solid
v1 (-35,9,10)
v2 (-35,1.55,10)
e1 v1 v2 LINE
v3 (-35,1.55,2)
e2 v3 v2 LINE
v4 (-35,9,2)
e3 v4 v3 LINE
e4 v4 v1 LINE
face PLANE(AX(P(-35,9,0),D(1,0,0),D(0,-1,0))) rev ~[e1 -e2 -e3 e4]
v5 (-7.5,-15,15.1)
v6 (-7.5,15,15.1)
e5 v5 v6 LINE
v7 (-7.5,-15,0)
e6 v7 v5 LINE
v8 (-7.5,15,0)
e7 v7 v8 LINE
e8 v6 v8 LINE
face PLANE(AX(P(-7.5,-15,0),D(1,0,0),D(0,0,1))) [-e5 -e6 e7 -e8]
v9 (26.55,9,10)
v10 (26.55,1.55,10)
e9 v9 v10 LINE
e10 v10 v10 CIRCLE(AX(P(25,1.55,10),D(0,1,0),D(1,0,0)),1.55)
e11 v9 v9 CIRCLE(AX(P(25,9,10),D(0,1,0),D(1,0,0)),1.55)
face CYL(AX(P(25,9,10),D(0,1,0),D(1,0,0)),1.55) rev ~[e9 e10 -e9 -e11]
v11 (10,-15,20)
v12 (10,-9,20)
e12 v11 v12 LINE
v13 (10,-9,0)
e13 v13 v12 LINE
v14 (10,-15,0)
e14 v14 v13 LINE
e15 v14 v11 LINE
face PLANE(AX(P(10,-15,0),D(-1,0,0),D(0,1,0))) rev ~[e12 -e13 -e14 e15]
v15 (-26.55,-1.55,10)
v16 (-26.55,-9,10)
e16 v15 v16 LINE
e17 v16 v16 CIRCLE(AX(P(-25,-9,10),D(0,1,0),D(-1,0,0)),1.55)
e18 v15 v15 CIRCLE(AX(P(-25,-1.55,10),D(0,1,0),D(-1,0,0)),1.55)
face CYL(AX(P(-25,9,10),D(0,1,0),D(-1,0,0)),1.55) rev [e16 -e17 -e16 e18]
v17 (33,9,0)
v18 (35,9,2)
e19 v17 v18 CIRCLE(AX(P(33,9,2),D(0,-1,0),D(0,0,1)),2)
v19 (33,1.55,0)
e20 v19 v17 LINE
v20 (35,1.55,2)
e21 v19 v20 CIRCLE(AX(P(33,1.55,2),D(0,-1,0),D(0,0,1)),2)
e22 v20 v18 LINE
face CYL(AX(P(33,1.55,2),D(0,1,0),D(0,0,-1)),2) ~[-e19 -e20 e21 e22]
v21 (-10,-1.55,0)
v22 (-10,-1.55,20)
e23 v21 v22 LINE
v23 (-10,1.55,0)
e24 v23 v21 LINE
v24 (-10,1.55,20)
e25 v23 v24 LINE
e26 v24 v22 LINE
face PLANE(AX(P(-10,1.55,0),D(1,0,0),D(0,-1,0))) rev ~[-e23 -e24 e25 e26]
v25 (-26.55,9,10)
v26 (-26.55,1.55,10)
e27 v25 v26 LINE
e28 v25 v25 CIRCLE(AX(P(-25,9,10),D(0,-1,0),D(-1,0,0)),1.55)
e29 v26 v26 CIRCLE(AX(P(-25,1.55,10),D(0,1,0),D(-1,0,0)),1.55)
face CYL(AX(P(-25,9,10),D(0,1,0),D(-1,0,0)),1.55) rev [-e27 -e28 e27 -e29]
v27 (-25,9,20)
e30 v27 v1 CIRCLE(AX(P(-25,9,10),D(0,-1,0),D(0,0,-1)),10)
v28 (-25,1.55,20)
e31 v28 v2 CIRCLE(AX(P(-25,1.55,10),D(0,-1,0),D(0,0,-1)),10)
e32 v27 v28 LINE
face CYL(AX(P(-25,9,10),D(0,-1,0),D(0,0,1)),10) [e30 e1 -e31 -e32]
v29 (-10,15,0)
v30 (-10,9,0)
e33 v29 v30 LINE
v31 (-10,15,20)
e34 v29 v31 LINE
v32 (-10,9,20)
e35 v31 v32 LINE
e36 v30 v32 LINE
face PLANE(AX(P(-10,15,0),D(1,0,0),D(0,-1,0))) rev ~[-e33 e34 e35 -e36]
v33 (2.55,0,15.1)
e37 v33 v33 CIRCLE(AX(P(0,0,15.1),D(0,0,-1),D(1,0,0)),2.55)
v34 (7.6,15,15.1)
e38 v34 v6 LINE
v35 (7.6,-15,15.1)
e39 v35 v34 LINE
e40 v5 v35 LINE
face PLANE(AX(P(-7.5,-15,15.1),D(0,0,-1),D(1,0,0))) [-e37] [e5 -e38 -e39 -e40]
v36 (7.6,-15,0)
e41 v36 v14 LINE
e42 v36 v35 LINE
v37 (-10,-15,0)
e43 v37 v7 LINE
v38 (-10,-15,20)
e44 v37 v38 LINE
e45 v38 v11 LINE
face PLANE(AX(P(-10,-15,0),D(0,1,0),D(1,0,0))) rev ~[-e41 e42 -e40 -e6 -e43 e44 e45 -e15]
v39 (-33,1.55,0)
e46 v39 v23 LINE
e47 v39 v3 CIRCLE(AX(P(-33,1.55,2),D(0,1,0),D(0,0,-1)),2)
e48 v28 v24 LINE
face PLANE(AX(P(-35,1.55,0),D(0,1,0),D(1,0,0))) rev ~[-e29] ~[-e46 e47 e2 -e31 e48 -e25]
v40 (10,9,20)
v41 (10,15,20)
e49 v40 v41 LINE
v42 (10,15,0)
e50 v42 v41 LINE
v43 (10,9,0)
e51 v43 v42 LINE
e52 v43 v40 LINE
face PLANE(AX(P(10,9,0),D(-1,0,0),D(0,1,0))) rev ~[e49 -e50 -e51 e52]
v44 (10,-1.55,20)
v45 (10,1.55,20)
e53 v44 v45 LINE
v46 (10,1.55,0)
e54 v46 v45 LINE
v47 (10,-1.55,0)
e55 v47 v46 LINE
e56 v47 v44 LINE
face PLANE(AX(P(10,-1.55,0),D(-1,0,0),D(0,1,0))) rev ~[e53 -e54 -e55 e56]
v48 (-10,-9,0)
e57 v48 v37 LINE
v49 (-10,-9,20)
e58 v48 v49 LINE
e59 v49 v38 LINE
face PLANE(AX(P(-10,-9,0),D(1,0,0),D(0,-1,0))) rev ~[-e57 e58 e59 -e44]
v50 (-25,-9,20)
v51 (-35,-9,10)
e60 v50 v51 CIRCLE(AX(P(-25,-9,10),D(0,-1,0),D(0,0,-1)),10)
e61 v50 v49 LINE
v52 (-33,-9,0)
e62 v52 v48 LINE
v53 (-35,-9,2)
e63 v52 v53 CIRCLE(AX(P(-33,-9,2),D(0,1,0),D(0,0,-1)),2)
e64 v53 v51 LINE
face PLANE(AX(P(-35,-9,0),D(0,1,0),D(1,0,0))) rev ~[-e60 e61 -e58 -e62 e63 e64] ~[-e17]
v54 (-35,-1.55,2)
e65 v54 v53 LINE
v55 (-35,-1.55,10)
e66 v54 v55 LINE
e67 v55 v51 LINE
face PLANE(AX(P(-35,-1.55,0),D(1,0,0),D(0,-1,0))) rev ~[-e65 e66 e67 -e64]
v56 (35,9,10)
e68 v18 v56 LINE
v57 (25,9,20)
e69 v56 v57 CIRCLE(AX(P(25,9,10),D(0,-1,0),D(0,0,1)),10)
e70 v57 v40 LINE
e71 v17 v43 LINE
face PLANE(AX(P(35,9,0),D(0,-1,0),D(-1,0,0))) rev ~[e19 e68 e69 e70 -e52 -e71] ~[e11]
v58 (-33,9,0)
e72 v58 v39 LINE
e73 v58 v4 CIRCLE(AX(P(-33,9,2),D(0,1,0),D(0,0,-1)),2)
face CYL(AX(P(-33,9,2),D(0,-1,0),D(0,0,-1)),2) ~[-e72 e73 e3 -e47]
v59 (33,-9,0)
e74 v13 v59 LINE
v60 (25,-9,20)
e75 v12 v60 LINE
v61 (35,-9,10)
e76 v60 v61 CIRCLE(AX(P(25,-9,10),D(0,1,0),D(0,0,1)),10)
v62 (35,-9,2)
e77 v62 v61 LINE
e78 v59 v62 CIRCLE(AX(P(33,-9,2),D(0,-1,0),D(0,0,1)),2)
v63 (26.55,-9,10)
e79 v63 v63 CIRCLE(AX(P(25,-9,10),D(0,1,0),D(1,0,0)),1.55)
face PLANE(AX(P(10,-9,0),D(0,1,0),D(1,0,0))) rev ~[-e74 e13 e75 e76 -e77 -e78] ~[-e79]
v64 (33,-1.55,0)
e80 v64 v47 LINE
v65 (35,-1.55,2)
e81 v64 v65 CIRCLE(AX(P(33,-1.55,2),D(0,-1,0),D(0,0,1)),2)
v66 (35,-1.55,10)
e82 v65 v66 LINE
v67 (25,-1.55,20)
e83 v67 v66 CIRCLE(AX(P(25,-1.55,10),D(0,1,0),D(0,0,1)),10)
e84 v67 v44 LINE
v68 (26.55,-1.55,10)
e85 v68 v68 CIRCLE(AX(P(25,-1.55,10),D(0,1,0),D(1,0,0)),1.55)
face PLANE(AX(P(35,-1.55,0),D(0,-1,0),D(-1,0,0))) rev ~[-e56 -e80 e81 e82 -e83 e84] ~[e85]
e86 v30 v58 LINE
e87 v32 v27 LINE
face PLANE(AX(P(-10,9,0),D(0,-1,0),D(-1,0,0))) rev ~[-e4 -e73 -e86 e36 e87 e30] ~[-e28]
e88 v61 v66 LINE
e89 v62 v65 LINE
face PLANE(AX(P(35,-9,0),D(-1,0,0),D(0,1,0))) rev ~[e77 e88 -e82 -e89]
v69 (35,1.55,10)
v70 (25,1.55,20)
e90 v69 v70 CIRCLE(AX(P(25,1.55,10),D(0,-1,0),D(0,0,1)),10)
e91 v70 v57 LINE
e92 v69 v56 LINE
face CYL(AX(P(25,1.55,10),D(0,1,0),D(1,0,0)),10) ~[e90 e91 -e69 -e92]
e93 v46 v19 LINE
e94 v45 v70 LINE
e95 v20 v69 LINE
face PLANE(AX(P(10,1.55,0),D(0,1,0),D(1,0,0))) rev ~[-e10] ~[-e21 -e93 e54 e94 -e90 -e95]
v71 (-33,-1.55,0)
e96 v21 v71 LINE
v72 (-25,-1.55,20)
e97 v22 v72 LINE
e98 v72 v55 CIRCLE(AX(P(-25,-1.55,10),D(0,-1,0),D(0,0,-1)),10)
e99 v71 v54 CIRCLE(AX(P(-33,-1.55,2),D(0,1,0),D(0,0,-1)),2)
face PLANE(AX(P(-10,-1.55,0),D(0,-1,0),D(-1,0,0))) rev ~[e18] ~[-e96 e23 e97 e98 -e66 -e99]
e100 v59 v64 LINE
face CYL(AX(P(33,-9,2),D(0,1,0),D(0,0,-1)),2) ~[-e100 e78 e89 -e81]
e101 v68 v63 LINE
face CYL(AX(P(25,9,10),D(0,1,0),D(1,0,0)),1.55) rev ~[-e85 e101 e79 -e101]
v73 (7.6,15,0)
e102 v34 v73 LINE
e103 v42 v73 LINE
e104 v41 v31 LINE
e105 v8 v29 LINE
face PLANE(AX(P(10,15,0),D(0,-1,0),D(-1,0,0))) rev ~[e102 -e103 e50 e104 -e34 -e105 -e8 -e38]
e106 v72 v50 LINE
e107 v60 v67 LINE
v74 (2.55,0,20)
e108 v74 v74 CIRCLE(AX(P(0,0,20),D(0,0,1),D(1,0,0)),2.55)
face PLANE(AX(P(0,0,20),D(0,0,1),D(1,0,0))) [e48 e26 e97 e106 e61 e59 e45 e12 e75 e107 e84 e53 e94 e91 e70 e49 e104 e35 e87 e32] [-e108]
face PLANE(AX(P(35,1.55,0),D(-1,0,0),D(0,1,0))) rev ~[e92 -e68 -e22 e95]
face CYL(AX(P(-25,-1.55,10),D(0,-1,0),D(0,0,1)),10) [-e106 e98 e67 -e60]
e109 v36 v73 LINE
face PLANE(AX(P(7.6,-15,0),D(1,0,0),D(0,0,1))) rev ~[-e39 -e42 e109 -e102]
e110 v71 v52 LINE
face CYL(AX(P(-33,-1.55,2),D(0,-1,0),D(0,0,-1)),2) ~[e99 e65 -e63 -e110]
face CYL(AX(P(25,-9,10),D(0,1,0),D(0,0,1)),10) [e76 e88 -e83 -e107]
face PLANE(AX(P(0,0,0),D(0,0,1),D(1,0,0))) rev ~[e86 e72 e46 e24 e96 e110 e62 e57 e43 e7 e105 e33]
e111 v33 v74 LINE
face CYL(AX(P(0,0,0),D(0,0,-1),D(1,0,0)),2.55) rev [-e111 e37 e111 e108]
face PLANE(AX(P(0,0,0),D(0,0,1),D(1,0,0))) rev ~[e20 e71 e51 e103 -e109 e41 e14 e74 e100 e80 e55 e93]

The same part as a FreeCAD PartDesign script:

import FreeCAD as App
import Part
import Sketcher

V = App.Vector


def edges_at(feature, points):
    """Names of the edges that pass closest to the given points."""
    edges = feature.Shape.Edges
    near = lambda p: min(range(len(edges)), key=lambda i: edges[i].distToShape(Part.Vertex(*p))[0])
    return sorted({f"Edge{near(p) + 1}" for p in points})


def add_polygon(sketch, points):
    """Adds a closed chain of lines whose ends are joined by coincident constraints."""
    first, n = sketch.GeometryCount, len(points)
    for a, b in zip(points, points[1:] + points[:1]):
        sketch.addGeometry(Part.LineSegment(App.Vector(*a, 0), App.Vector(*b, 0)), False)
    for i in range(n):
        sketch.addConstraint(Sketcher.Constraint("Coincident", first + i, 2, first + (i + 1) % n, 1))

doc = App.newDocument("Part")
params = doc.addObject("Spreadsheet::Sheet", "Params")
for row, (alias, value) in enumerate([
    ("sketch1_diameter", "5.1 mm"),
    ("sketch1_width", "20 mm"),
    ("sketch1_width2", "25 mm"),
    ("sketch1_height", "6 mm"),
    ("sketch1_height2", "3.1 mm"),
    ("pad1_length", "20 mm"),
    ("sketch2_width", "15.1 mm"),
    ("sketch3_diameter", "3.1 mm"),
    ("pocket2_length", "100 mm"),
    ("fillet_radius", "2 mm"),
    ("fillet2_radius", "10 mm"),
], start=1):
    params.set(f"A{row}", alias)
    params.set(f"B{row}", "=" + value)
    params.setAlias(f"B{row}", alias)

body = doc.addObject("PartDesign::Body", "Body")

# Sketch on XY plane
sketch1 = body.newObject("Sketcher::SketchObject", "Sketch")
sketch1.AttachmentSupport = (doc.getObject("XY_Plane"), [""])
sketch1.MapMode = "FlatFace"
add_polygon(sketch1, [(10, 9), (10, 15), (-10, 15), (-10, 9), (-35, 9), (-35, 1.55), (-10, 1.55), (-10, -1.55), (-35, -1.55), (-35, -9), (-10, -9), (-10, -15), (10, -15), (10, -9), (35, -9), (35, -1.55), (10, -1.55), (10, 1.55), (35, 1.55), (35, 9)])  # lines 0-19
sketch1.addGeometry(Part.Circle(V(0, 0, 0), V(0, 0, 1), 2.55), False)  # 20
sketch1.addConstraint(Sketcher.Constraint("Vertical", 0))
sketch1.addConstraint(Sketcher.Constraint("Horizontal", 1))
sketch1.addConstraint(Sketcher.Constraint("Vertical", 2))
sketch1.addConstraint(Sketcher.Constraint("Horizontal", 3))
sketch1.addConstraint(Sketcher.Constraint("Vertical", 4))
sketch1.addConstraint(Sketcher.Constraint("Horizontal", 5))
sketch1.addConstraint(Sketcher.Constraint("Vertical", 6))
sketch1.addConstraint(Sketcher.Constraint("Horizontal", 7))
sketch1.addConstraint(Sketcher.Constraint("Vertical", 8))
sketch1.addConstraint(Sketcher.Constraint("Horizontal", 9))
sketch1.addConstraint(Sketcher.Constraint("Vertical", 10))
sketch1.addConstraint(Sketcher.Constraint("Horizontal", 11))
sketch1.addConstraint(Sketcher.Constraint("Vertical", 12))
sketch1.addConstraint(Sketcher.Constraint("Horizontal", 13))
sketch1.addConstraint(Sketcher.Constraint("Vertical", 14))
sketch1.addConstraint(Sketcher.Constraint("Horizontal", 15))
sketch1.addConstraint(Sketcher.Constraint("Vertical", 16))
sketch1.addConstraint(Sketcher.Constraint("Horizontal", 17))
sketch1.addConstraint(Sketcher.Constraint("Vertical", 18))
sketch1.addConstraint(Sketcher.Constraint("Horizontal", 19))
sketch1.addConstraint(Sketcher.Constraint("Coincident", 20, 3, -1, 1))
sketch1.addConstraint(Sketcher.Constraint("Symmetric", 0, 2, 10, 2, -1, 1))
sketch1.addConstraint(Sketcher.Constraint("Symmetric", 2, 2, 12, 2, -1, 1))
sketch1.addConstraint(Sketcher.Constraint("Symmetric", 4, 2, 14, 2, -1, 1))
sketch1.addConstraint(Sketcher.Constraint("Symmetric", 6, 2, 16, 2, -1, 1))
sketch1.addConstraint(Sketcher.Constraint("Symmetric", 8, 2, 18, 2, -1, 1))
sketch1.addConstraint(Sketcher.Constraint("Symmetric", 9, 2, 12, 2, -2))
sketch1.addConstraint(Sketcher.Constraint("Symmetric", 7, 2, 14, 2, -2))
sketch1.addConstraint(Sketcher.Constraint("Vertical", 2, 2, 5, 2))
sketch1.addConstraint(Sketcher.Constraint("Diameter", 20, 5.1))
sketch1.addConstraint(Sketcher.Constraint("DistanceX", 1, 2, 1, 1, 20.0))
sketch1.addConstraint(Sketcher.Constraint("DistanceX", 3, 2, 3, 1, 25.0))
sketch1.addConstraint(Sketcher.Constraint("DistanceY", 0, 1, 0, 2, 6.0))
sketch1.addConstraint(Sketcher.Constraint("DistanceY", 6, 2, 6, 1, 3.1))
sketch1.addConstraint(Sketcher.Constraint("DistanceY", -1, 1, 0, 2, 15.0))
sketch1.setExpression("Constraints[49]", "Params.sketch1_diameter")
sketch1.setExpression("Constraints[50]", "Params.sketch1_width")
sketch1.setExpression("Constraints[51]", "Params.sketch1_width2")
sketch1.setExpression("Constraints[52]", "Params.sketch1_height")
sketch1.setExpression("Constraints[53]", "Params.sketch1_height2")
pad1 = body.newObject("PartDesign::Pad", "Pad")
pad1.Profile = sketch1
pad1.setExpression("Length", "Params.pad1_length")

# Sketch on XZ plane
sketch2 = body.newObject("Sketcher::SketchObject", "Sketch001")
sketch2.AttachmentSupport = (doc.getObject("XZ_Plane"), [""])
sketch2.MapMode = "FlatFace"
sketch2.AttachmentOffset = App.Placement(V(0, 0, 15), App.Rotation())
add_polygon(sketch2, [(-7.5, 15.1), (-7.5, 0), (7.6, 0), (7.6, 15.1)])  # lines 0-3
sketch2.addConstraint(Sketcher.Constraint("Vertical", 0))
sketch2.addConstraint(Sketcher.Constraint("Horizontal", 1))
sketch2.addConstraint(Sketcher.Constraint("Vertical", 2))
sketch2.addConstraint(Sketcher.Constraint("Horizontal", 3))
sketch2.addConstraint(Sketcher.Constraint("PointOnObject", 0, 2, -1))
sketch2.addConstraint(Sketcher.Constraint("Equal", 3, 0))
sketch2.addConstraint(Sketcher.Constraint("DistanceX", 1, 1, 1, 2, 15.1))
sketch2.addConstraint(Sketcher.Constraint("DistanceX", 0, 2, -1, 1, 7.5))
sketch2.setExpression("Constraints[10]", "Params.sketch2_width")
pocket1 = body.newObject("PartDesign::Pocket", "Pocket")
pocket1.Profile = sketch2
pocket1.Type = "UpToFirst"

# Sketch on XZ plane
sketch3 = body.newObject("Sketcher::SketchObject", "Sketch002")
sketch3.AttachmentSupport = (doc.getObject("XZ_Plane"), [""])
sketch3.MapMode = "FlatFace"
sketch3.AttachmentOffset = App.Placement(V(0, 0, -9), App.Rotation())
sketch3.addGeometry(Part.Circle(V(25, 10, 0), V(0, 0, 1), 1.55), False)
sketch3.addConstraint(Sketcher.Constraint("Diameter", 0, 3.1))
sketch3.addConstraint(Sketcher.Constraint("DistanceX", -1, 1, 0, 3, 25.0))
sketch3.addConstraint(Sketcher.Constraint("DistanceY", -1, 1, 0, 3, 10.0))
sketch3.setExpression("Constraints[0]", "Params.sketch3_diameter")
pocket2 = body.newObject("PartDesign::Pocket", "Pocket001")
pocket2.Profile = sketch3
pocket2.setExpression("Length", "Params.pocket2_length")
pocket2.Reversed = True
doc.recompute()

mirrored = body.newObject("PartDesign::Mirrored", "Mirrored")
mirrored.Originals = [pocket2]
mirrored.MirrorPlane = (doc.getObject("YZ_Plane"), [""])
body.Tip = mirrored
doc.recompute()

fillet = body.newObject("PartDesign::Fillet", "Fillet")
fillet.Base = (mirrored, edges_at(mirrored, [
    (-35, -5.275, 0),
    (-35, 5.275, 0),
    (35, 5.275, 0),
    (35, -5.275, 0),
]))
fillet.setExpression("Radius", "Params.fillet_radius")
doc.recompute()

fillet2 = body.newObject("PartDesign::Fillet", "Fillet001")
fillet2.Base = (fillet, edges_at(fillet, [
    (35, -5.275, 20),
    (35, 5.275, 20),
    (-35, 5.275, 20),
    (-35, -5.275, 20),
]))
fillet2.setExpression("Radius", "Params.fillet2_radius")

doc.recompute()
